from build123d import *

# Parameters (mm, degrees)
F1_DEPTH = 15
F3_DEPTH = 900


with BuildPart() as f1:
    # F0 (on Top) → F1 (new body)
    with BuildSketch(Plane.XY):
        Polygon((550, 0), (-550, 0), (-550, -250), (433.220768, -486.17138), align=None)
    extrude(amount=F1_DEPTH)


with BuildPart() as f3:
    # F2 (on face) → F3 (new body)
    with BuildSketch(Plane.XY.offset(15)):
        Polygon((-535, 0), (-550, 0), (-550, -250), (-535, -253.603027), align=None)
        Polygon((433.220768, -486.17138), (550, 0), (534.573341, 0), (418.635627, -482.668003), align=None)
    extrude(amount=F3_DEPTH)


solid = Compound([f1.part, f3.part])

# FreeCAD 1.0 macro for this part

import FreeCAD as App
import Part
import Sketcher
Q = App.Units.Quantity

doc = App.newDocument("Part")
body = doc.addObject("PartDesign::Body", "Body")

# Sketch on XY plane
sketch1 = doc.addObject("Sketcher::SketchObject", "Sketch")
body.addObject(sketch1)
sketch1.AttachmentSupport = (doc.XY_Plane, [""])
sketch1.MapMode = "FlatFace"
sketch1.addGeometry([
    Part.LineSegment(App.Vector(550, 0, 0), App.Vector(-550, 0, 0)),
    Part.LineSegment(App.Vector(-550, 0, 0), App.Vector(-550, -250, 0)),
    Part.LineSegment(App.Vector(-550, -250, 0), App.Vector(433, -486, 0)),
    Part.LineSegment(App.Vector(433, -486, 0), App.Vector(550, 0, 0)),
], False)
sketch1.addConstraint([
    Sketcher.Constraint("Coincident", 0, 2, 1, 1),
    Sketcher.Constraint("Coincident", 1, 2, 2, 1),
    Sketcher.Constraint("Coincident", 2, 2, 3, 1),
    Sketcher.Constraint("Coincident", 3, 2, 0, 1),
    Sketcher.Constraint("Horizontal", 0),
    Sketcher.Constraint("Vertical", 1),
    Sketcher.Constraint("Symmetric", 0, 2, 3, 2, -1, 1),
    Sketcher.Constraint("Perpendicular", 2, 3),
    Sketcher.Constraint("DistanceX", 0, 2, 0, 1, Q("1100 mm")),
    Sketcher.Constraint("DistanceY", 1, 2, 1, 1, Q("250 mm")),
    Sketcher.Constraint("Distance", 3, Q("500 mm")),
])
pad1 = doc.addObject("PartDesign::Pad", "Pad")
body.addObject(pad1)
pad1.Profile = sketch1
pad1.Length = 15
body2 = doc.addObject("PartDesign::Body", "Body001")
body2.AllowCompound = True

# Sketch on XY plane
sketch2 = doc.addObject("Sketcher::SketchObject", "Sketch001")
body2.addObject(sketch2)
sketch2.AttachmentSupport = (doc.getObject("XY_Plane001"), [""])
sketch2.MapMode = "FlatFace"
sketch2.AttachmentOffset = App.Placement(App.Vector(0, 0, 15), App.Rotation())
sketch2.addGeometry([
    Part.LineSegment(App.Vector(-535, 0, 0), App.Vector(-550, 0, 0)),  # 0
    Part.LineSegment(App.Vector(-550, 0, 0), App.Vector(-550, -250, 0)),  # 1
    Part.LineSegment(App.Vector(-550, -250, 0), App.Vector(-535, -253.603027, 0)),  # 2
    Part.LineSegment(App.Vector(-535, -253.603027, 0), App.Vector(-535, 0, 0)),  # 3
    Part.LineSegment(App.Vector(433.220768, -486.17138, 0), App.Vector(550, 0, 0)),  # 4
    Part.LineSegment(App.Vector(550, 0, 0), App.Vector(534.573341, 0, 0)),  # 5
    Part.LineSegment(App.Vector(534.573341, 0, 0), App.Vector(418.635627, -482.668003, 0)),  # 6
    Part.LineSegment(App.Vector(418.635627, -482.668003, 0), App.Vector(433.220768, -486.17138, 0)),  # 7
], False)
sketch2.addConstraint([
    Sketcher.Constraint("Coincident", 0, 2, 1, 1),
    Sketcher.Constraint("Coincident", 1, 2, 2, 1),
    Sketcher.Constraint("Coincident", 2, 2, 3, 1),
    Sketcher.Constraint("Coincident", 3, 2, 0, 1),
    Sketcher.Constraint("Coincident", 4, 2, 5, 1),
    Sketcher.Constraint("Coincident", 5, 2, 6, 1),
    Sketcher.Constraint("Coincident", 6, 2, 7, 1),
    Sketcher.Constraint("Coincident", 7, 2, 4, 1),
    Sketcher.Constraint("Horizontal", 0),
    Sketcher.Constraint("Vertical", 1),
    Sketcher.Constraint("Vertical", 3),
    Sketcher.Constraint("Horizontal", 5),
    Sketcher.Constraint("PointOnObject", 0, 2, -1),
    Sketcher.Constraint("PointOnObject", 4, 2, -1),
    Sketcher.Constraint("DistanceX", 0, 2, 0, 1, Q("15 mm")),
    Sketcher.Constraint("DistanceY", 1, 2, 1, 1, Q("250 mm")),
    Sketcher.Constraint("Distance", 4, Q("500 mm")),
    Sketcher.Constraint("Distance", 7, Q("15 mm")),
    Sketcher.Constraint("DistanceX", 0, 2, -1, 1, Q("550 mm")),
    Sketcher.Constraint("DistanceX", -1, 1, 4, 2, Q("550 mm")),
    Sketcher.Constraint("DistanceX", 5, 2, 5, 1, Q("15.426659 mm")),
    Sketcher.Constraint("Distance", 2, Q("15.426659 mm")),
    Sketcher.Constraint("DistanceX", -1, 1, 7, 2, Q("433.220768 mm")),
    Sketcher.Constraint("DistanceX", 6, 2, 7, 2, Q("14.585141 mm")),
])
pad2 = doc.addObject("PartDesign::Pad", "Pad001")
body2.addObject(pad2)
pad2.Profile = sketch2
pad2.Length = 900

doc.recompute()
